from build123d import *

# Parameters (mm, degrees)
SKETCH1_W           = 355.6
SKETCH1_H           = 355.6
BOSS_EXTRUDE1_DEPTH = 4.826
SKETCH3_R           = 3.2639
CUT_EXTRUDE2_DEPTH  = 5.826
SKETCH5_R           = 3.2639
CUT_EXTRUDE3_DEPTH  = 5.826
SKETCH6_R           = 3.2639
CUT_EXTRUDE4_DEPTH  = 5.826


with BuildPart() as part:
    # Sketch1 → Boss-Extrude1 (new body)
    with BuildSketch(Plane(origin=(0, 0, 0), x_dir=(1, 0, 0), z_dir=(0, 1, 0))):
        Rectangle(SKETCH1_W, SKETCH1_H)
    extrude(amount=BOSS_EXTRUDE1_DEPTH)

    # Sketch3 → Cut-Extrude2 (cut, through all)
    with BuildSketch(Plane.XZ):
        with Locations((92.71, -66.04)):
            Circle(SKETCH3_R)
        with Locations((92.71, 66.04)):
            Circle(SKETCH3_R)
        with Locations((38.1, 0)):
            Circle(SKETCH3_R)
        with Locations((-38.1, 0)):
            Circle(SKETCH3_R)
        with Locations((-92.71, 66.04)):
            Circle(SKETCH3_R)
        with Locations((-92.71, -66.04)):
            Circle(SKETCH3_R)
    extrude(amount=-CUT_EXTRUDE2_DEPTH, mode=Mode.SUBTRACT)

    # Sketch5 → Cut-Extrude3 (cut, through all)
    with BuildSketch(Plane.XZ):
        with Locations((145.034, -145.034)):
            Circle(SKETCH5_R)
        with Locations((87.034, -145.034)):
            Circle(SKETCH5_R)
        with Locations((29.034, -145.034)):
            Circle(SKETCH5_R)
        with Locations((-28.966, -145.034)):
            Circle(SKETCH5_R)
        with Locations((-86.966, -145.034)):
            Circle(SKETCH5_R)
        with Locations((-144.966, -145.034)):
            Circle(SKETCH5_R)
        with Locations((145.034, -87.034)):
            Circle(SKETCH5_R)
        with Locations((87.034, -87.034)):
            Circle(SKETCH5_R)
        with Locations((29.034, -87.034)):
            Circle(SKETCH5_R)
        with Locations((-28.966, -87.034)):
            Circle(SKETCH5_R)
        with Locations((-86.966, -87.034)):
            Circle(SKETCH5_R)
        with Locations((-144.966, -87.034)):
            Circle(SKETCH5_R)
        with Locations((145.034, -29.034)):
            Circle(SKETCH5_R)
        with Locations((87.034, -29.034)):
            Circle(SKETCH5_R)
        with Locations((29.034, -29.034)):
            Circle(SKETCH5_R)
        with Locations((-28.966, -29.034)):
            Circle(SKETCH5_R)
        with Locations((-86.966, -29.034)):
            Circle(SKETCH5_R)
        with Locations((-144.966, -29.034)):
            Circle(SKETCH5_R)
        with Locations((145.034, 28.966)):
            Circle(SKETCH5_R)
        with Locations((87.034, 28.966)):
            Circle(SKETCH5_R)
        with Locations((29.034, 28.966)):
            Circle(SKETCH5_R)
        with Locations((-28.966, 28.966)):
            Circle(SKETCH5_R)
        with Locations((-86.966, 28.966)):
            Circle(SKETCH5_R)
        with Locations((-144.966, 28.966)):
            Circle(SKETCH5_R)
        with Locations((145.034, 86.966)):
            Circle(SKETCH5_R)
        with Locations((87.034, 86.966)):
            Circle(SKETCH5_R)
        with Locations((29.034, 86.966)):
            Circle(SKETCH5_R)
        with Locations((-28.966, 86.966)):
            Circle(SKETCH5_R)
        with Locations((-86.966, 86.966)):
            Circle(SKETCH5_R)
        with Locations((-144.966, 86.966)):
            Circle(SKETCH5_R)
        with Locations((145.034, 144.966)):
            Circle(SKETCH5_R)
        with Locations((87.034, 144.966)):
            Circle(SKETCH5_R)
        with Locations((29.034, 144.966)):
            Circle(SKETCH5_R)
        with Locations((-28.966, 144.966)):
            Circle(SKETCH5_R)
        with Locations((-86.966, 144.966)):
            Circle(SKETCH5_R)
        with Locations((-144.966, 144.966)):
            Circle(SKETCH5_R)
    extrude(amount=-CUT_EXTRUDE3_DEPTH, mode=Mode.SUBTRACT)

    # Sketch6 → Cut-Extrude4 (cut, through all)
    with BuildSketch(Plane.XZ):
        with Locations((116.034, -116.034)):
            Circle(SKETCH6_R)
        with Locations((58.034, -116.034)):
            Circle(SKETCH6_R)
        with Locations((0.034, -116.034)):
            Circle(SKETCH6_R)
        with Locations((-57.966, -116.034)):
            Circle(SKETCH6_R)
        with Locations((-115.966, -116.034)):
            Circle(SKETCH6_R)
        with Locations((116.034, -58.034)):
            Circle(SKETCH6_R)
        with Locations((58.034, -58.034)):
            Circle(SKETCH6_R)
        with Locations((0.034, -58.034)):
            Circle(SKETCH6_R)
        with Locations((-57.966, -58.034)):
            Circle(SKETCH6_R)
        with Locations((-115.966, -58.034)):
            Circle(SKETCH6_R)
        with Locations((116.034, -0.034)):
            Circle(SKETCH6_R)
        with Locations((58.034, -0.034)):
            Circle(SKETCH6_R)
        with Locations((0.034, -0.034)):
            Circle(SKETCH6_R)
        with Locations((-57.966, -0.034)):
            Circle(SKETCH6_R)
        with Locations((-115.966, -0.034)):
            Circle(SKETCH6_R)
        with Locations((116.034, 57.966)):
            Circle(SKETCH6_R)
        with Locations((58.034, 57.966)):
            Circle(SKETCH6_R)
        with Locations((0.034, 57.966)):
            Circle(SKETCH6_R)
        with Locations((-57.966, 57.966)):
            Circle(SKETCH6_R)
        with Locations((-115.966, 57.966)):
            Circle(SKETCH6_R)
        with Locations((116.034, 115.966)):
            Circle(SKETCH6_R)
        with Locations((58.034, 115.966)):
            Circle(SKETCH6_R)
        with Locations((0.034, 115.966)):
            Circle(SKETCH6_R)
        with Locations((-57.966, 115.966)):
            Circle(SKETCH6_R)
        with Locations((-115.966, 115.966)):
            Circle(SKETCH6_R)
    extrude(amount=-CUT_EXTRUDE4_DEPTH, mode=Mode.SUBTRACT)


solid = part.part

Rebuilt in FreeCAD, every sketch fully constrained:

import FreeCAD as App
import Part
import Sketcher
from FreeCAD import Vector
Q = App.Units.Quantity


def add_polygon(sketch, points):
    """Adds a closed chain of lines whose ends are joined by coincident constraints."""
    first, n = sketch.GeometryCount, len(points)
    for a, b in zip(points, points[1:] + points[:1]):
        sketch.addGeometry(Part.LineSegment(App.Vector(*a, 0), App.Vector(*b, 0)), False)
    for i in range(n):
        sketch.addConstraint(Sketcher.Constraint("Coincident", first + i, 2, first + (i + 1) % n, 1))

doc = App.newDocument("Part")
body = doc.addObject("PartDesign::Body", "Body")

# Sketch on XZ plane
sketch1 = body.newObject("Sketcher::SketchObject", "Sketch")
sketch1.AttachmentSupport = (doc.getObject("XZ_Plane"), [""])
sketch1.MapMode = "FlatFace"
add_polygon(sketch1, [(-178, -178), (-178, 178), (178, 178), (178, -178)])  # lines 0-3
sketch1.addConstraint(Sketcher.Constraint("Vertical", 0))
sketch1.addConstraint(Sketcher.Constraint("Horizontal", 1))
sketch1.addConstraint(Sketcher.Constraint("Vertical", 2))
sketch1.addConstraint(Sketcher.Constraint("Horizontal", 3))
sketch1.addConstraint(Sketcher.Constraint("Symmetric", 0, 2, 2, 2, -1, 1))
sketch1.addConstraint(Sketcher.Constraint("Equal", 3, 0))
sketch1.addConstraint(Sketcher.Constraint("DistanceX", 1, 1, 1, 2, Q("14 in")))
pad1 = body.newObject("PartDesign::Pad", "Pad")
pad1.Profile = sketch1
pad1.Length = Q("0.19 in")
pad1.Reversed = True

# Sketch on XZ plane
sketch2 = body.newObject("Sketcher::SketchObject", "Sketch001")
sketch2.AttachmentSupport = (doc.getObject("XZ_Plane"), [""])
sketch2.MapMode = "FlatFace"
sketch2.addGeometry(Part.Circle(Vector(92.7, -66, 0), Vector(0, 0, 1), 3.3), False)
sketch2.addGeometry(Part.Circle(Vector(92.7, 66, 0), Vector(0, 0, 1), 3.3), False)
sketch2.addGeometry(Part.Circle(Vector(38.1, 0, 0), Vector(0, 0, 1), 3.3), False)
sketch2.addGeometry(Part.Circle(Vector(-38.1, 0, 0), Vector(0, 0, 1), 3.3), False)
sketch2.addGeometry(Part.Circle(Vector(-92.7, 66, 0), Vector(0, 0, 1), 3.3), False)
sketch2.addGeometry(Part.Circle(Vector(-92.7, -66, 0), Vector(0, 0, 1), 3.3), False)
sketch2.addConstraint(Sketcher.Constraint("Equal", 0, 1))
sketch2.addConstraint(Sketcher.Constraint("Equal", 1, 2))
sketch2.addConstraint(Sketcher.Constraint("Equal", 2, 3))
sketch2.addConstraint(Sketcher.Constraint("Equal", 3, 4))
sketch2.addConstraint(Sketcher.Constraint("Equal", 4, 5))
sketch2.addConstraint(Sketcher.Constraint("Symmetric", 2, 3, 3, 3, -1, 1))
sketch2.addConstraint(Sketcher.Constraint("Symmetric", 0, 3, 4, 3, -1, 1))
sketch2.addConstraint(Sketcher.Constraint("Symmetric", 1, 3, 5, 3, -1, 1))
sketch2.addConstraint(Sketcher.Constraint("Symmetric", 1, 3, 4, 3, -2))
sketch2.addConstraint(Sketcher.Constraint("PointOnObject", 2, 3, -1))
sketch2.addConstraint(Sketcher.Constraint("Diameter", 0, Q("0.257 in")))
sketch2.addConstraint(Sketcher.Constraint("DistanceX", 3, 3, 2, 3, Q("3 in")))
sketch2.addConstraint(Sketcher.Constraint("DistanceY", 0, 3, -1, 1, Q("2.6 in")))
sketch2.addConstraint(Sketcher.Constraint("DistanceX", 4, 3, 1, 3, Q("7.3 in")))
pocket1 = body.newObject("PartDesign::Pocket", "Pocket")
pocket1.Profile = sketch2
pocket1.Type = "ThroughAll"

# Sketch on XZ plane
sketch3 = body.newObject("Sketcher::SketchObject", "Sketch002")
sketch3.AttachmentSupport = (doc.getObject("XZ_Plane"), [""])
sketch3.MapMode = "FlatFace"
sketch3.addGeometry(Part.Circle(Vector(145, -145, 0), Vector(0, 0, 1), 3.3), False)
sketch3.addGeometry(Part.Circle(Vector(87, -145, 0), Vector(0, 0, 1), 3.3), False)
sketch3.addGeometry(Part.Circle(Vector(29, -145, 0), Vector(0, 0, 1), 3.3), False)
sketch3.addGeometry(Part.Circle(Vector(-29, -145, 0), Vector(0, 0, 1), 3.3), False)
sketch3.addGeometry(Part.Circle(Vector(-87, -145, 0), Vector(0, 0, 1), 3.3), False)
sketch3.addGeometry(Part.Circle(Vector(-145, -145, 0), Vector(0, 0, 1), 3.3), False)
sketch3.addGeometry(Part.Circle(Vector(145, -87, 0), Vector(0, 0, 1), 3.3), False)
sketch3.addGeometry(Part.Circle(Vector(87, -87, 0), Vector(0, 0, 1), 3.3), False)
sketch3.addGeometry(Part.Circle(Vector(29, -87, 0), Vector(0, 0, 1), 3.3), False)
sketch3.addGeometry(Part.Circle(Vector(-29, -87, 0), Vector(0, 0, 1), 3.3), False)
sketch3.addGeometry(Part.Circle(Vector(-87, -87, 0), Vector(0, 0, 1), 3.3), False)
sketch3.addGeometry(Part.Circle(Vector(-145, -87, 0), Vector(0, 0, 1), 3.3), False)
sketch3.addGeometry(Part.Circle(Vector(145, -29, 0), Vector(0, 0, 1), 3.3), False)
sketch3.addGeometry(Part.Circle(Vector(87, -29, 0), Vector(0, 0, 1), 3.3), False)
sketch3.addGeometry(Part.Circle(Vector(29, -29, 0), Vector(0, 0, 1), 3.3), False)
sketch3.addGeometry(Part.Circle(Vector(-29, -29, 0), Vector(0, 0, 1), 3.3), False)
sketch3.addGeometry(Part.Circle(Vector(-87, -29, 0), Vector(0, 0, 1), 3.3), False)
sketch3.addGeometry(Part.Circle(Vector(-145, -29, 0), Vector(0, 0, 1), 3.3), False)
sketch3.addGeometry(Part.Circle(Vector(145, 29, 0), Vector(0, 0, 1), 3.3), False)
sketch3.addGeometry(Part.Circle(Vector(87, 29, 0), Vector(0, 0, 1), 3.3), False)
sketch3.addGeometry(Part.Circle(Vector(29, 29, 0), Vector(0, 0, 1), 3.3), False)
sketch3.addGeometry(Part.Circle(Vector(-29, 29, 0), Vector(0, 0, 1), 3.3), False)
sketch3.addGeometry(Part.Circle(Vector(-87, 29, 0), Vector(0, 0, 1), 3.3), False)
sketch3.addGeometry(Part.Circle(Vector(-145, 29, 0), Vector(0, 0, 1), 3.3), False)
sketch3.addGeometry(Part.Circle(Vector(145, 87, 0), Vector(0, 0, 1), 3.3), False)
sketch3.addGeometry(Part.Circle(Vector(87, 87, 0), Vector(0, 0, 1), 3.3), False)
sketch3.addGeometry(Part.Circle(Vector(29, 87, 0), Vector(0, 0, 1), 3.3), False)
sketch3.addGeometry(Part.Circle(Vector(-29, 87, 0), Vector(0, 0, 1), 3.3), False)
sketch3.addGeometry(Part.Circle(Vector(-87, 87, 0), Vector(0, 0, 1), 3.3), False)
sketch3.addGeometry(Part.Circle(Vector(-145, 87, 0), Vector(0, 0, 1), 3.3), False)
sketch3.addGeometry(Part.Circle(Vector(145, 145, 0), Vector(0, 0, 1), 3.3), False)
sketch3.addGeometry(Part.Circle(Vector(87, 145, 0), Vector(0, 0, 1), 3.3), False)
sketch3.addGeometry(Part.Circle(Vector(29, 145, 0), Vector(0, 0, 1), 3.3), False)
sketch3.addGeometry(Part.Circle(Vector(-29, 145, 0), Vector(0, 0, 1), 3.3), False)
sketch3.addGeometry(Part.Circle(Vector(-87, 145, 0), Vector(0, 0, 1), 3.3), False)
sketch3.addGeometry(Part.Circle(Vector(-145, 145, 0), Vector(0, 0, 1), 3.3), False)
sketch3.addConstraint(Sketcher.Constraint("Equal", 0, 1))
sketch3.addConstraint(Sketcher.Constraint("Equal", 1, 2))
sketch3.addConstraint(Sketcher.Constraint("Equal", 2, 3))
sketch3.addConstraint(Sketcher.Constraint("Equal", 3, 4))
sketch3.addConstraint(Sketcher.Constraint("Equal", 4, 5))
sketch3.addConstraint(Sketcher.Constraint("Equal", 5, 6))
sketch3.addConstraint(Sketcher.Constraint("Equal", 6, 7))
sketch3.addConstraint(Sketcher.Constraint("Equal", 7, 8))
sketch3.addConstraint(Sketcher.Constraint("Equal", 8, 9))
sketch3.addConstraint(Sketcher.Constraint("Equal", 9, 10))
sketch3.addConstraint(Sketcher.Constraint("Equal", 10, 11))
sketch3.addConstraint(Sketcher.Constraint("Equal", 11, 12))
sketch3.addConstraint(Sketcher.Constraint("Equal", 12, 13))
sketch3.addConstraint(Sketcher.Constraint("Equal", 13, 14))
sketch3.addConstraint(Sketcher.Constraint("Equal", 14, 15))
sketch3.addConstraint(Sketcher.Constraint("Equal", 15, 16))
sketch3.addConstraint(Sketcher.Constraint("Equal", 16, 17))
sketch3.addConstraint(Sketcher.Constraint("Equal", 17, 18))
sketch3.addConstraint(Sketcher.Constraint("Equal", 18, 19))
sketch3.addConstraint(Sketcher.Constraint("Equal", 19, 20))
sketch3.addConstraint(Sketcher.Constraint("Equal", 20, 21))
sketch3.addConstraint(Sketcher.Constraint("Equal", 21, 22))
sketch3.addConstraint(Sketcher.Constraint("Equal", 22, 23))
sketch3.addConstraint(Sketcher.Constraint("Equal", 23, 24))
sketch3.addConstraint(Sketcher.Constraint("Equal", 24, 25))
sketch3.addConstraint(Sketcher.Constraint("Equal", 25, 26))
sketch3.addConstraint(Sketcher.Constraint("Equal", 26, 27))
sketch3.addConstraint(Sketcher.Constraint("Equal", 27, 28))
sketch3.addConstraint(Sketcher.Constraint("Equal", 28, 29))
sketch3.addConstraint(Sketcher.Constraint("Equal", 29, 30))
sketch3.addConstraint(Sketcher.Constraint("Equal", 30, 31))
sketch3.addConstraint(Sketcher.Constraint("Equal", 31, 32))
sketch3.addConstraint(Sketcher.Constraint("Equal", 32, 33))
sketch3.addConstraint(Sketcher.Constraint("Equal", 33, 34))
sketch3.addConstraint(Sketcher.Constraint("Equal", 34, 35))
sketch3.addConstraint(Sketcher.Constraint("Horizontal", 0, 3, 1, 3))
sketch3.addConstraint(Sketcher.Constraint("Horizontal", 1, 3, 2, 3))
sketch3.addConstraint(Sketcher.Constraint("Horizontal", 2, 3, 3, 3))
sketch3.addConstraint(Sketcher.Constraint("Horizontal", 3, 3, 4, 3))
sketch3.addConstraint(Sketcher.Constraint("Horizontal", 4, 3, 5, 3))
sketch3.addConstraint(Sketcher.Constraint("Horizontal", 6, 3, 7, 3))
sketch3.addConstraint(Sketcher.Constraint("Horizontal", 7, 3, 8, 3))
sketch3.addConstraint(Sketcher.Constraint("Horizontal", 8, 3, 9, 3))
sketch3.addConstraint(Sketcher.Constraint("Horizontal", 9, 3, 10, 3))
sketch3.addConstraint(Sketcher.Constraint("Horizontal", 10, 3, 11, 3))
sketch3.addConstraint(Sketcher.Constraint("Horizontal", 12, 3, 13, 3))
sketch3.addConstraint(Sketcher.Constraint("Horizontal", 13, 3, 14, 3))
sketch3.addConstraint(Sketcher.Constraint("Horizontal", 14, 3, 15, 3))
sketch3.addConstraint(Sketcher.Constraint("Horizontal", 15, 3, 16, 3))
sketch3.addConstraint(Sketcher.Constraint("Horizontal", 16, 3, 17, 3))
sketch3.addConstraint(Sketcher.Constraint("Horizontal", 18, 3, 19, 3))
sketch3.addConstraint(Sketcher.Constraint("Horizontal", 19, 3, 20, 3))
sketch3.addConstraint(Sketcher.Constraint("Horizontal", 20, 3, 21, 3))
sketch3.addConstraint(Sketcher.Constraint("Horizontal", 21, 3, 22, 3))
sketch3.addConstraint(Sketcher.Constraint("Horizontal", 22, 3, 23, 3))
sketch3.addConstraint(Sketcher.Constraint("Horizontal", 24, 3, 25, 3))
sketch3.addConstraint(Sketcher.Constraint("Horizontal", 25, 3, 26, 3))
sketch3.addConstraint(Sketcher.Constraint("Horizontal", 26, 3, 27, 3))
sketch3.addConstraint(Sketcher.Constraint("Horizontal", 27, 3, 28, 3))
sketch3.addConstraint(Sketcher.Constraint("Horizontal", 28, 3, 29, 3))
sketch3.addConstraint(Sketcher.Constraint("Horizontal", 30, 3, 31, 3))
sketch3.addConstraint(Sketcher.Constraint("Horizontal", 31, 3, 32, 3))
sketch3.addConstraint(Sketcher.Constraint("Horizontal", 32, 3, 33, 3))
sketch3.addConstraint(Sketcher.Constraint("Horizontal", 33, 3, 34, 3))
sketch3.addConstraint(Sketcher.Constraint("Horizontal", 34, 3, 35, 3))
sketch3.addConstraint(Sketcher.Constraint("Vertical", 0, 3, 6, 3))
sketch3.addConstraint(Sketcher.Constraint("Vertical", 1, 3, 7, 3))
sketch3.addConstraint(Sketcher.Constraint("Vertical", 2, 3, 8, 3))
sketch3.addConstraint(Sketcher.Constraint("Vertical", 3, 3, 9, 3))
sketch3.addConstraint(Sketcher.Constraint("Vertical", 4, 3, 10, 3))
sketch3.addConstraint(Sketcher.Constraint("Vertical", 5, 3, 11, 3))
sketch3.addConstraint(Sketcher.Constraint("Vertical", 6, 3, 12, 3))
sketch3.addConstraint(Sketcher.Constraint("Vertical", 7, 3, 13, 3))
sketch3.addConstraint(Sketcher.Constraint("Vertical", 8, 3, 14, 3))
sketch3.addConstraint(Sketcher.Constraint("Vertical", 9, 3, 15, 3))
sketch3.addConstraint(Sketcher.Constraint("Vertical", 10, 3, 16, 3))
sketch3.addConstraint(Sketcher.Constraint("Vertical", 11, 3, 17, 3))
sketch3.addConstraint(Sketcher.Constraint("Vertical", 12, 3, 18, 3))
sketch3.addConstraint(Sketcher.Constraint("Vertical", 13, 3, 19, 3))
sketch3.addConstraint(Sketcher.Constraint("Vertical", 14, 3, 20, 3))
sketch3.addConstraint(Sketcher.Constraint("Vertical", 15, 3, 21, 3))
sketch3.addConstraint(Sketcher.Constraint("Vertical", 16, 3, 22, 3))
sketch3.addConstraint(Sketcher.Constraint("Vertical", 17, 3, 23, 3))
sketch3.addConstraint(Sketcher.Constraint("Vertical", 18, 3, 24, 3))
sketch3.addConstraint(Sketcher.Constraint("Vertical", 19, 3, 25, 3))
sketch3.addConstraint(Sketcher.Constraint("Vertical", 20, 3, 26, 3))
sketch3.addConstraint(Sketcher.Constraint("Vertical", 21, 3, 27, 3))
sketch3.addConstraint(Sketcher.Constraint("Vertical", 22, 3, 28, 3))
sketch3.addConstraint(Sketcher.Constraint("Vertical", 23, 3, 29, 3))
sketch3.addConstraint(Sketcher.Constraint("Vertical", 24, 3, 30, 3))
sketch3.addConstraint(Sketcher.Constraint("Vertical", 25, 3, 31, 3))
sketch3.addConstraint(Sketcher.Constraint("Vertical", 26, 3, 32, 3))
sketch3.addConstraint(Sketcher.Constraint("Vertical", 27, 3, 33, 3))
sketch3.addConstraint(Sketcher.Constraint("Vertical", 28, 3, 34, 3))
sketch3.addConstraint(Sketcher.Constraint("Vertical", 29, 3, 35, 3))
sketch3.addConstraint(Sketcher.Constraint("Diameter", 0, Q("0.257 in")))
sketch3.addConstraint(Sketcher.Constraint("DistanceX", -1, 1, 0, 3, Q("5.71 in")))
sketch3.addConstraint(Sketcher.Constraint("DistanceY", 0, 3, -1, 1, Q("5.71 in")))
sketch3.addConstraint(Sketcher.Constraint("DistanceX", -1, 1, 1, 3, 87.034))
sketch3.addConstraint(Sketcher.Constraint("DistanceX", -1, 1, 2, 3, 29.034))
sketch3.addConstraint(Sketcher.Constraint("DistanceX", 3, 3, -1, 1, 28.966))
sketch3.addConstraint(Sketcher.Constraint("DistanceX", 4, 3, -1, 1, 86.966))
sketch3.addConstraint(Sketcher.Constraint("DistanceX", 5, 3, -1, 1, 144.966))
sketch3.addConstraint(Sketcher.Constraint("DistanceY", 6, 3, -1, 1, 87.034))
sketch3.addConstraint(Sketcher.Constraint("DistanceY", 12, 3, -1, 1, 29.034))
sketch3.addConstraint(Sketcher.Constraint("DistanceY", -1, 1, 18, 3, 28.966))
sketch3.addConstraint(Sketcher.Constraint("DistanceY", -1, 1, 24, 3, 86.966))
sketch3.addConstraint(Sketcher.Constraint("DistanceY", -1, 1, 30, 3, 144.966))
pocket2 = body.newObject("PartDesign::Pocket", "Pocket001")
pocket2.Profile = sketch3
pocket2.Type = "ThroughAll"

# Sketch on XZ plane
sketch4 = body.newObject("Sketcher::SketchObject", "Sketch003")
sketch4.AttachmentSupport = (doc.getObject("XZ_Plane"), [""])
sketch4.MapMode = "FlatFace"
sketch4.addGeometry(Part.Circle(Vector(116, -116, 0), Vector(0, 0, 1), 3.3), False)
sketch4.addGeometry(Part.Circle(Vector(58, -116, 0), Vector(0, 0, 1), 3.3), False)
sketch4.addGeometry(Part.Circle(Vector(0, -116, 0), Vector(0, 0, 1), 3.3), False)
sketch4.addGeometry(Part.Circle(Vector(-58, -116, 0), Vector(0, 0, 1), 3.3), False)
sketch4.addGeometry(Part.Circle(Vector(-116, -116, 0), Vector(0, 0, 1), 3.3), False)
sketch4.addGeometry(Part.Circle(Vector(116, -58, 0), Vector(0, 0, 1), 3.3), False)
sketch4.addGeometry(Part.Circle(Vector(58, -58, 0), Vector(0, 0, 1), 3.3), False)
sketch4.addGeometry(Part.Circle(Vector(0, -58, 0), Vector(0, 0, 1), 3.3), False)
sketch4.addGeometry(Part.Circle(Vector(-58, -58, 0), Vector(0, 0, 1), 3.3), False)
sketch4.addGeometry(Part.Circle(Vector(-116, -58, 0), Vector(0, 0, 1), 3.3), False)
sketch4.addGeometry(Part.Circle(Vector(116, 0, 0), Vector(0, 0, 1), 3.3), False)
sketch4.addGeometry(Part.Circle(Vector(58, 0, 0), Vector(0, 0, 1), 3.3), False)
sketch4.addGeometry(Part.Circle(Vector(0, 0, 0), Vector(0, 0, 1), 3.3), False)
sketch4.addGeometry(Part.Circle(Vector(-58, 0, 0), Vector(0, 0, 1), 3.3), False)
sketch4.addGeometry(Part.Circle(Vector(-116, 0, 0), Vector(0, 0, 1), 3.3), False)
sketch4.addGeometry(Part.Circle(Vector(116, 58, 0), Vector(0, 0, 1), 3.3), False)
sketch4.addGeometry(Part.Circle(Vector(58, 58, 0), Vector(0, 0, 1), 3.3), False)
sketch4.addGeometry(Part.Circle(Vector(0, 58, 0), Vector(0, 0, 1), 3.3), False)
sketch4.addGeometry(Part.Circle(Vector(-58, 58, 0), Vector(0, 0, 1), 3.3), False)
sketch4.addGeometry(Part.Circle(Vector(-116, 58, 0), Vector(0, 0, 1), 3.3), False)
sketch4.addGeometry(Part.Circle(Vector(116, 116, 0), Vector(0, 0, 1), 3.3), False)
sketch4.addGeometry(Part.Circle(Vector(58, 116, 0), Vector(0, 0, 1), 3.3), False)
sketch4.addGeometry(Part.Circle(Vector(0, 116, 0), Vector(0, 0, 1), 3.3), False)
sketch4.addGeometry(Part.Circle(Vector(-58, 116, 0), Vector(0, 0, 1), 3.3), False)
sketch4.addGeometry(Part.Circle(Vector(-116, 116, 0), Vector(0, 0, 1), 3.3), False)
sketch4.addConstraint(Sketcher.Constraint("Equal", 0, 1))
sketch4.addConstraint(Sketcher.Constraint("Equal", 1, 2))
sketch4.addConstraint(Sketcher.Constraint("Equal", 2, 3))
sketch4.addConstraint(Sketcher.Constraint("Equal", 3, 4))
sketch4.addConstraint(Sketcher.Constraint("Equal", 4, 5))
sketch4.addConstraint(Sketcher.Constraint("Equal", 5, 6))
sketch4.addConstraint(Sketcher.Constraint("Equal", 6, 7))
sketch4.addConstraint(Sketcher.Constraint("Equal", 7, 8))
sketch4.addConstraint(Sketcher.Constraint("Equal", 8, 9))
sketch4.addConstraint(Sketcher.Constraint("Equal", 9, 10))
sketch4.addConstraint(Sketcher.Constraint("Equal", 10, 11))
sketch4.addConstraint(Sketcher.Constraint("Equal", 11, 12))
sketch4.addConstraint(Sketcher.Constraint("Equal", 12, 13))
sketch4.addConstraint(Sketcher.Constraint("Equal", 13, 14))
sketch4.addConstraint(Sketcher.Constraint("Equal", 14, 15))
sketch4.addConstraint(Sketcher.Constraint("Equal", 15, 16))
sketch4.addConstraint(Sketcher.Constraint("Equal", 16, 17))
sketch4.addConstraint(Sketcher.Constraint("Equal", 17, 18))
sketch4.addConstraint(Sketcher.Constraint("Equal", 18, 19))
sketch4.addConstraint(Sketcher.Constraint("Equal", 19, 20))
sketch4.addConstraint(Sketcher.Constraint("Equal", 20, 21))
sketch4.addConstraint(Sketcher.Constraint("Equal", 21, 22))
sketch4.addConstraint(Sketcher.Constraint("Equal", 22, 23))
sketch4.addConstraint(Sketcher.Constraint("Equal", 23, 24))
sketch4.addConstraint(Sketcher.Constraint("Horizontal", 0, 3, 1, 3))
sketch4.addConstraint(Sketcher.Constraint("Horizontal", 1, 3, 2, 3))
sketch4.addConstraint(Sketcher.Constraint("Horizontal", 2, 3, 3, 3))
sketch4.addConstraint(Sketcher.Constraint("Horizontal", 3, 3, 4, 3))
sketch4.addConstraint(Sketcher.Constraint("Horizontal", 5, 3, 6, 3))
sketch4.addConstraint(Sketcher.Constraint("Horizontal", 6, 3, 7, 3))
sketch4.addConstraint(Sketcher.Constraint("Horizontal", 7, 3, 8, 3))
sketch4.addConstraint(Sketcher.Constraint("Horizontal", 8, 3, 9, 3))
sketch4.addConstraint(Sketcher.Constraint("Horizontal", 10, 3, 11, 3))
sketch4.addConstraint(Sketcher.Constraint("Horizontal", 11, 3, 12, 3))
sketch4.addConstraint(Sketcher.Constraint("Horizontal", 12, 3, 13, 3))
sketch4.addConstraint(Sketcher.Constraint("Horizontal", 13, 3, 14, 3))
sketch4.addConstraint(Sketcher.Constraint("Horizontal", 15, 3, 16, 3))
sketch4.addConstraint(Sketcher.Constraint("Horizontal", 16, 3, 17, 3))
sketch4.addConstraint(Sketcher.Constraint("Horizontal", 17, 3, 18, 3))
sketch4.addConstraint(Sketcher.Constraint("Horizontal", 18, 3, 19, 3))
sketch4.addConstraint(Sketcher.Constraint("Horizontal", 20, 3, 21, 3))
sketch4.addConstraint(Sketcher.Constraint("Horizontal", 21, 3, 22, 3))
sketch4.addConstraint(Sketcher.Constraint("Horizontal", 22, 3, 23, 3))
sketch4.addConstraint(Sketcher.Constraint("Horizontal", 23, 3, 24, 3))
sketch4.addConstraint(Sketcher.Constraint("Vertical", 0, 3, 5, 3))
sketch4.addConstraint(Sketcher.Constraint("Vertical", 1, 3, 6, 3))
sketch4.addConstraint(Sketcher.Constraint("Vertical", 2, 3, 7, 3))
sketch4.addConstraint(Sketcher.Constraint("Vertical", 3, 3, 8, 3))
sketch4.addConstraint(Sketcher.Constraint("Vertical", 4, 3, 9, 3))
sketch4.addConstraint(Sketcher.Constraint("Vertical", 5, 3, 10, 3))
sketch4.addConstraint(Sketcher.Constraint("Vertical", 6, 3, 11, 3))
sketch4.addConstraint(Sketcher.Constraint("Vertical", 7, 3, 12, 3))
sketch4.addConstraint(Sketcher.Constraint("Vertical", 8, 3, 13, 3))
sketch4.addConstraint(Sketcher.Constraint("Vertical", 9, 3, 14, 3))
sketch4.addConstraint(Sketcher.Constraint("Vertical", 10, 3, 15, 3))
sketch4.addConstraint(Sketcher.Constraint("Vertical", 11, 3, 16, 3))
sketch4.addConstraint(Sketcher.Constraint("Vertical", 12, 3, 17, 3))
sketch4.addConstraint(Sketcher.Constraint("Vertical", 13, 3, 18, 3))
sketch4.addConstraint(Sketcher.Constraint("Vertical", 14, 3, 19, 3))
sketch4.addConstraint(Sketcher.Constraint("Vertical", 15, 3, 20, 3))
sketch4.addConstraint(Sketcher.Constraint("Vertical", 16, 3, 21, 3))
sketch4.addConstraint(Sketcher.Constraint("Vertical", 17, 3, 22, 3))
sketch4.addConstraint(Sketcher.Constraint("Vertical", 18, 3, 23, 3))
sketch4.addConstraint(Sketcher.Constraint("Vertical", 19, 3, 24, 3))
sketch4.addConstraint(Sketcher.Constraint("Diameter", 0, Q("0.257 in")))
sketch4.addConstraint(Sketcher.Constraint("DistanceX", -1, 1, 0, 3, 116.034))
sketch4.addConstraint(Sketcher.Constraint("DistanceY", 0, 3, -1, 1, 116.034))
sketch4.addConstraint(Sketcher.Constraint("DistanceX", -1, 1, 1, 3, 58.034))
sketch4.addConstraint(Sketcher.Constraint("DistanceX", -1, 1, 2, 3, 0.034))
sketch4.addConstraint(Sketcher.Constraint("DistanceX", 3, 3, -1, 1, 57.966))
sketch4.addConstraint(Sketcher.Constraint("DistanceX", 4, 3, -1, 1, 115.966))
sketch4.addConstraint(Sketcher.Constraint("DistanceY", 5, 3, -1, 1, 58.034))
sketch4.addConstraint(Sketcher.Constraint("DistanceY", 10, 3, -1, 1, 0.034))
sketch4.addConstraint(Sketcher.Constraint("DistanceY", -1, 1, 15, 3, 57.966))
sketch4.addConstraint(Sketcher.Constraint("DistanceY", -1, 1, 20, 3, 115.966))
pocket3 = body.newObject("PartDesign::Pocket", "Pocket002")
pocket3.Profile = sketch4
pocket3.Type = "ThroughAll"

doc.recompute()
